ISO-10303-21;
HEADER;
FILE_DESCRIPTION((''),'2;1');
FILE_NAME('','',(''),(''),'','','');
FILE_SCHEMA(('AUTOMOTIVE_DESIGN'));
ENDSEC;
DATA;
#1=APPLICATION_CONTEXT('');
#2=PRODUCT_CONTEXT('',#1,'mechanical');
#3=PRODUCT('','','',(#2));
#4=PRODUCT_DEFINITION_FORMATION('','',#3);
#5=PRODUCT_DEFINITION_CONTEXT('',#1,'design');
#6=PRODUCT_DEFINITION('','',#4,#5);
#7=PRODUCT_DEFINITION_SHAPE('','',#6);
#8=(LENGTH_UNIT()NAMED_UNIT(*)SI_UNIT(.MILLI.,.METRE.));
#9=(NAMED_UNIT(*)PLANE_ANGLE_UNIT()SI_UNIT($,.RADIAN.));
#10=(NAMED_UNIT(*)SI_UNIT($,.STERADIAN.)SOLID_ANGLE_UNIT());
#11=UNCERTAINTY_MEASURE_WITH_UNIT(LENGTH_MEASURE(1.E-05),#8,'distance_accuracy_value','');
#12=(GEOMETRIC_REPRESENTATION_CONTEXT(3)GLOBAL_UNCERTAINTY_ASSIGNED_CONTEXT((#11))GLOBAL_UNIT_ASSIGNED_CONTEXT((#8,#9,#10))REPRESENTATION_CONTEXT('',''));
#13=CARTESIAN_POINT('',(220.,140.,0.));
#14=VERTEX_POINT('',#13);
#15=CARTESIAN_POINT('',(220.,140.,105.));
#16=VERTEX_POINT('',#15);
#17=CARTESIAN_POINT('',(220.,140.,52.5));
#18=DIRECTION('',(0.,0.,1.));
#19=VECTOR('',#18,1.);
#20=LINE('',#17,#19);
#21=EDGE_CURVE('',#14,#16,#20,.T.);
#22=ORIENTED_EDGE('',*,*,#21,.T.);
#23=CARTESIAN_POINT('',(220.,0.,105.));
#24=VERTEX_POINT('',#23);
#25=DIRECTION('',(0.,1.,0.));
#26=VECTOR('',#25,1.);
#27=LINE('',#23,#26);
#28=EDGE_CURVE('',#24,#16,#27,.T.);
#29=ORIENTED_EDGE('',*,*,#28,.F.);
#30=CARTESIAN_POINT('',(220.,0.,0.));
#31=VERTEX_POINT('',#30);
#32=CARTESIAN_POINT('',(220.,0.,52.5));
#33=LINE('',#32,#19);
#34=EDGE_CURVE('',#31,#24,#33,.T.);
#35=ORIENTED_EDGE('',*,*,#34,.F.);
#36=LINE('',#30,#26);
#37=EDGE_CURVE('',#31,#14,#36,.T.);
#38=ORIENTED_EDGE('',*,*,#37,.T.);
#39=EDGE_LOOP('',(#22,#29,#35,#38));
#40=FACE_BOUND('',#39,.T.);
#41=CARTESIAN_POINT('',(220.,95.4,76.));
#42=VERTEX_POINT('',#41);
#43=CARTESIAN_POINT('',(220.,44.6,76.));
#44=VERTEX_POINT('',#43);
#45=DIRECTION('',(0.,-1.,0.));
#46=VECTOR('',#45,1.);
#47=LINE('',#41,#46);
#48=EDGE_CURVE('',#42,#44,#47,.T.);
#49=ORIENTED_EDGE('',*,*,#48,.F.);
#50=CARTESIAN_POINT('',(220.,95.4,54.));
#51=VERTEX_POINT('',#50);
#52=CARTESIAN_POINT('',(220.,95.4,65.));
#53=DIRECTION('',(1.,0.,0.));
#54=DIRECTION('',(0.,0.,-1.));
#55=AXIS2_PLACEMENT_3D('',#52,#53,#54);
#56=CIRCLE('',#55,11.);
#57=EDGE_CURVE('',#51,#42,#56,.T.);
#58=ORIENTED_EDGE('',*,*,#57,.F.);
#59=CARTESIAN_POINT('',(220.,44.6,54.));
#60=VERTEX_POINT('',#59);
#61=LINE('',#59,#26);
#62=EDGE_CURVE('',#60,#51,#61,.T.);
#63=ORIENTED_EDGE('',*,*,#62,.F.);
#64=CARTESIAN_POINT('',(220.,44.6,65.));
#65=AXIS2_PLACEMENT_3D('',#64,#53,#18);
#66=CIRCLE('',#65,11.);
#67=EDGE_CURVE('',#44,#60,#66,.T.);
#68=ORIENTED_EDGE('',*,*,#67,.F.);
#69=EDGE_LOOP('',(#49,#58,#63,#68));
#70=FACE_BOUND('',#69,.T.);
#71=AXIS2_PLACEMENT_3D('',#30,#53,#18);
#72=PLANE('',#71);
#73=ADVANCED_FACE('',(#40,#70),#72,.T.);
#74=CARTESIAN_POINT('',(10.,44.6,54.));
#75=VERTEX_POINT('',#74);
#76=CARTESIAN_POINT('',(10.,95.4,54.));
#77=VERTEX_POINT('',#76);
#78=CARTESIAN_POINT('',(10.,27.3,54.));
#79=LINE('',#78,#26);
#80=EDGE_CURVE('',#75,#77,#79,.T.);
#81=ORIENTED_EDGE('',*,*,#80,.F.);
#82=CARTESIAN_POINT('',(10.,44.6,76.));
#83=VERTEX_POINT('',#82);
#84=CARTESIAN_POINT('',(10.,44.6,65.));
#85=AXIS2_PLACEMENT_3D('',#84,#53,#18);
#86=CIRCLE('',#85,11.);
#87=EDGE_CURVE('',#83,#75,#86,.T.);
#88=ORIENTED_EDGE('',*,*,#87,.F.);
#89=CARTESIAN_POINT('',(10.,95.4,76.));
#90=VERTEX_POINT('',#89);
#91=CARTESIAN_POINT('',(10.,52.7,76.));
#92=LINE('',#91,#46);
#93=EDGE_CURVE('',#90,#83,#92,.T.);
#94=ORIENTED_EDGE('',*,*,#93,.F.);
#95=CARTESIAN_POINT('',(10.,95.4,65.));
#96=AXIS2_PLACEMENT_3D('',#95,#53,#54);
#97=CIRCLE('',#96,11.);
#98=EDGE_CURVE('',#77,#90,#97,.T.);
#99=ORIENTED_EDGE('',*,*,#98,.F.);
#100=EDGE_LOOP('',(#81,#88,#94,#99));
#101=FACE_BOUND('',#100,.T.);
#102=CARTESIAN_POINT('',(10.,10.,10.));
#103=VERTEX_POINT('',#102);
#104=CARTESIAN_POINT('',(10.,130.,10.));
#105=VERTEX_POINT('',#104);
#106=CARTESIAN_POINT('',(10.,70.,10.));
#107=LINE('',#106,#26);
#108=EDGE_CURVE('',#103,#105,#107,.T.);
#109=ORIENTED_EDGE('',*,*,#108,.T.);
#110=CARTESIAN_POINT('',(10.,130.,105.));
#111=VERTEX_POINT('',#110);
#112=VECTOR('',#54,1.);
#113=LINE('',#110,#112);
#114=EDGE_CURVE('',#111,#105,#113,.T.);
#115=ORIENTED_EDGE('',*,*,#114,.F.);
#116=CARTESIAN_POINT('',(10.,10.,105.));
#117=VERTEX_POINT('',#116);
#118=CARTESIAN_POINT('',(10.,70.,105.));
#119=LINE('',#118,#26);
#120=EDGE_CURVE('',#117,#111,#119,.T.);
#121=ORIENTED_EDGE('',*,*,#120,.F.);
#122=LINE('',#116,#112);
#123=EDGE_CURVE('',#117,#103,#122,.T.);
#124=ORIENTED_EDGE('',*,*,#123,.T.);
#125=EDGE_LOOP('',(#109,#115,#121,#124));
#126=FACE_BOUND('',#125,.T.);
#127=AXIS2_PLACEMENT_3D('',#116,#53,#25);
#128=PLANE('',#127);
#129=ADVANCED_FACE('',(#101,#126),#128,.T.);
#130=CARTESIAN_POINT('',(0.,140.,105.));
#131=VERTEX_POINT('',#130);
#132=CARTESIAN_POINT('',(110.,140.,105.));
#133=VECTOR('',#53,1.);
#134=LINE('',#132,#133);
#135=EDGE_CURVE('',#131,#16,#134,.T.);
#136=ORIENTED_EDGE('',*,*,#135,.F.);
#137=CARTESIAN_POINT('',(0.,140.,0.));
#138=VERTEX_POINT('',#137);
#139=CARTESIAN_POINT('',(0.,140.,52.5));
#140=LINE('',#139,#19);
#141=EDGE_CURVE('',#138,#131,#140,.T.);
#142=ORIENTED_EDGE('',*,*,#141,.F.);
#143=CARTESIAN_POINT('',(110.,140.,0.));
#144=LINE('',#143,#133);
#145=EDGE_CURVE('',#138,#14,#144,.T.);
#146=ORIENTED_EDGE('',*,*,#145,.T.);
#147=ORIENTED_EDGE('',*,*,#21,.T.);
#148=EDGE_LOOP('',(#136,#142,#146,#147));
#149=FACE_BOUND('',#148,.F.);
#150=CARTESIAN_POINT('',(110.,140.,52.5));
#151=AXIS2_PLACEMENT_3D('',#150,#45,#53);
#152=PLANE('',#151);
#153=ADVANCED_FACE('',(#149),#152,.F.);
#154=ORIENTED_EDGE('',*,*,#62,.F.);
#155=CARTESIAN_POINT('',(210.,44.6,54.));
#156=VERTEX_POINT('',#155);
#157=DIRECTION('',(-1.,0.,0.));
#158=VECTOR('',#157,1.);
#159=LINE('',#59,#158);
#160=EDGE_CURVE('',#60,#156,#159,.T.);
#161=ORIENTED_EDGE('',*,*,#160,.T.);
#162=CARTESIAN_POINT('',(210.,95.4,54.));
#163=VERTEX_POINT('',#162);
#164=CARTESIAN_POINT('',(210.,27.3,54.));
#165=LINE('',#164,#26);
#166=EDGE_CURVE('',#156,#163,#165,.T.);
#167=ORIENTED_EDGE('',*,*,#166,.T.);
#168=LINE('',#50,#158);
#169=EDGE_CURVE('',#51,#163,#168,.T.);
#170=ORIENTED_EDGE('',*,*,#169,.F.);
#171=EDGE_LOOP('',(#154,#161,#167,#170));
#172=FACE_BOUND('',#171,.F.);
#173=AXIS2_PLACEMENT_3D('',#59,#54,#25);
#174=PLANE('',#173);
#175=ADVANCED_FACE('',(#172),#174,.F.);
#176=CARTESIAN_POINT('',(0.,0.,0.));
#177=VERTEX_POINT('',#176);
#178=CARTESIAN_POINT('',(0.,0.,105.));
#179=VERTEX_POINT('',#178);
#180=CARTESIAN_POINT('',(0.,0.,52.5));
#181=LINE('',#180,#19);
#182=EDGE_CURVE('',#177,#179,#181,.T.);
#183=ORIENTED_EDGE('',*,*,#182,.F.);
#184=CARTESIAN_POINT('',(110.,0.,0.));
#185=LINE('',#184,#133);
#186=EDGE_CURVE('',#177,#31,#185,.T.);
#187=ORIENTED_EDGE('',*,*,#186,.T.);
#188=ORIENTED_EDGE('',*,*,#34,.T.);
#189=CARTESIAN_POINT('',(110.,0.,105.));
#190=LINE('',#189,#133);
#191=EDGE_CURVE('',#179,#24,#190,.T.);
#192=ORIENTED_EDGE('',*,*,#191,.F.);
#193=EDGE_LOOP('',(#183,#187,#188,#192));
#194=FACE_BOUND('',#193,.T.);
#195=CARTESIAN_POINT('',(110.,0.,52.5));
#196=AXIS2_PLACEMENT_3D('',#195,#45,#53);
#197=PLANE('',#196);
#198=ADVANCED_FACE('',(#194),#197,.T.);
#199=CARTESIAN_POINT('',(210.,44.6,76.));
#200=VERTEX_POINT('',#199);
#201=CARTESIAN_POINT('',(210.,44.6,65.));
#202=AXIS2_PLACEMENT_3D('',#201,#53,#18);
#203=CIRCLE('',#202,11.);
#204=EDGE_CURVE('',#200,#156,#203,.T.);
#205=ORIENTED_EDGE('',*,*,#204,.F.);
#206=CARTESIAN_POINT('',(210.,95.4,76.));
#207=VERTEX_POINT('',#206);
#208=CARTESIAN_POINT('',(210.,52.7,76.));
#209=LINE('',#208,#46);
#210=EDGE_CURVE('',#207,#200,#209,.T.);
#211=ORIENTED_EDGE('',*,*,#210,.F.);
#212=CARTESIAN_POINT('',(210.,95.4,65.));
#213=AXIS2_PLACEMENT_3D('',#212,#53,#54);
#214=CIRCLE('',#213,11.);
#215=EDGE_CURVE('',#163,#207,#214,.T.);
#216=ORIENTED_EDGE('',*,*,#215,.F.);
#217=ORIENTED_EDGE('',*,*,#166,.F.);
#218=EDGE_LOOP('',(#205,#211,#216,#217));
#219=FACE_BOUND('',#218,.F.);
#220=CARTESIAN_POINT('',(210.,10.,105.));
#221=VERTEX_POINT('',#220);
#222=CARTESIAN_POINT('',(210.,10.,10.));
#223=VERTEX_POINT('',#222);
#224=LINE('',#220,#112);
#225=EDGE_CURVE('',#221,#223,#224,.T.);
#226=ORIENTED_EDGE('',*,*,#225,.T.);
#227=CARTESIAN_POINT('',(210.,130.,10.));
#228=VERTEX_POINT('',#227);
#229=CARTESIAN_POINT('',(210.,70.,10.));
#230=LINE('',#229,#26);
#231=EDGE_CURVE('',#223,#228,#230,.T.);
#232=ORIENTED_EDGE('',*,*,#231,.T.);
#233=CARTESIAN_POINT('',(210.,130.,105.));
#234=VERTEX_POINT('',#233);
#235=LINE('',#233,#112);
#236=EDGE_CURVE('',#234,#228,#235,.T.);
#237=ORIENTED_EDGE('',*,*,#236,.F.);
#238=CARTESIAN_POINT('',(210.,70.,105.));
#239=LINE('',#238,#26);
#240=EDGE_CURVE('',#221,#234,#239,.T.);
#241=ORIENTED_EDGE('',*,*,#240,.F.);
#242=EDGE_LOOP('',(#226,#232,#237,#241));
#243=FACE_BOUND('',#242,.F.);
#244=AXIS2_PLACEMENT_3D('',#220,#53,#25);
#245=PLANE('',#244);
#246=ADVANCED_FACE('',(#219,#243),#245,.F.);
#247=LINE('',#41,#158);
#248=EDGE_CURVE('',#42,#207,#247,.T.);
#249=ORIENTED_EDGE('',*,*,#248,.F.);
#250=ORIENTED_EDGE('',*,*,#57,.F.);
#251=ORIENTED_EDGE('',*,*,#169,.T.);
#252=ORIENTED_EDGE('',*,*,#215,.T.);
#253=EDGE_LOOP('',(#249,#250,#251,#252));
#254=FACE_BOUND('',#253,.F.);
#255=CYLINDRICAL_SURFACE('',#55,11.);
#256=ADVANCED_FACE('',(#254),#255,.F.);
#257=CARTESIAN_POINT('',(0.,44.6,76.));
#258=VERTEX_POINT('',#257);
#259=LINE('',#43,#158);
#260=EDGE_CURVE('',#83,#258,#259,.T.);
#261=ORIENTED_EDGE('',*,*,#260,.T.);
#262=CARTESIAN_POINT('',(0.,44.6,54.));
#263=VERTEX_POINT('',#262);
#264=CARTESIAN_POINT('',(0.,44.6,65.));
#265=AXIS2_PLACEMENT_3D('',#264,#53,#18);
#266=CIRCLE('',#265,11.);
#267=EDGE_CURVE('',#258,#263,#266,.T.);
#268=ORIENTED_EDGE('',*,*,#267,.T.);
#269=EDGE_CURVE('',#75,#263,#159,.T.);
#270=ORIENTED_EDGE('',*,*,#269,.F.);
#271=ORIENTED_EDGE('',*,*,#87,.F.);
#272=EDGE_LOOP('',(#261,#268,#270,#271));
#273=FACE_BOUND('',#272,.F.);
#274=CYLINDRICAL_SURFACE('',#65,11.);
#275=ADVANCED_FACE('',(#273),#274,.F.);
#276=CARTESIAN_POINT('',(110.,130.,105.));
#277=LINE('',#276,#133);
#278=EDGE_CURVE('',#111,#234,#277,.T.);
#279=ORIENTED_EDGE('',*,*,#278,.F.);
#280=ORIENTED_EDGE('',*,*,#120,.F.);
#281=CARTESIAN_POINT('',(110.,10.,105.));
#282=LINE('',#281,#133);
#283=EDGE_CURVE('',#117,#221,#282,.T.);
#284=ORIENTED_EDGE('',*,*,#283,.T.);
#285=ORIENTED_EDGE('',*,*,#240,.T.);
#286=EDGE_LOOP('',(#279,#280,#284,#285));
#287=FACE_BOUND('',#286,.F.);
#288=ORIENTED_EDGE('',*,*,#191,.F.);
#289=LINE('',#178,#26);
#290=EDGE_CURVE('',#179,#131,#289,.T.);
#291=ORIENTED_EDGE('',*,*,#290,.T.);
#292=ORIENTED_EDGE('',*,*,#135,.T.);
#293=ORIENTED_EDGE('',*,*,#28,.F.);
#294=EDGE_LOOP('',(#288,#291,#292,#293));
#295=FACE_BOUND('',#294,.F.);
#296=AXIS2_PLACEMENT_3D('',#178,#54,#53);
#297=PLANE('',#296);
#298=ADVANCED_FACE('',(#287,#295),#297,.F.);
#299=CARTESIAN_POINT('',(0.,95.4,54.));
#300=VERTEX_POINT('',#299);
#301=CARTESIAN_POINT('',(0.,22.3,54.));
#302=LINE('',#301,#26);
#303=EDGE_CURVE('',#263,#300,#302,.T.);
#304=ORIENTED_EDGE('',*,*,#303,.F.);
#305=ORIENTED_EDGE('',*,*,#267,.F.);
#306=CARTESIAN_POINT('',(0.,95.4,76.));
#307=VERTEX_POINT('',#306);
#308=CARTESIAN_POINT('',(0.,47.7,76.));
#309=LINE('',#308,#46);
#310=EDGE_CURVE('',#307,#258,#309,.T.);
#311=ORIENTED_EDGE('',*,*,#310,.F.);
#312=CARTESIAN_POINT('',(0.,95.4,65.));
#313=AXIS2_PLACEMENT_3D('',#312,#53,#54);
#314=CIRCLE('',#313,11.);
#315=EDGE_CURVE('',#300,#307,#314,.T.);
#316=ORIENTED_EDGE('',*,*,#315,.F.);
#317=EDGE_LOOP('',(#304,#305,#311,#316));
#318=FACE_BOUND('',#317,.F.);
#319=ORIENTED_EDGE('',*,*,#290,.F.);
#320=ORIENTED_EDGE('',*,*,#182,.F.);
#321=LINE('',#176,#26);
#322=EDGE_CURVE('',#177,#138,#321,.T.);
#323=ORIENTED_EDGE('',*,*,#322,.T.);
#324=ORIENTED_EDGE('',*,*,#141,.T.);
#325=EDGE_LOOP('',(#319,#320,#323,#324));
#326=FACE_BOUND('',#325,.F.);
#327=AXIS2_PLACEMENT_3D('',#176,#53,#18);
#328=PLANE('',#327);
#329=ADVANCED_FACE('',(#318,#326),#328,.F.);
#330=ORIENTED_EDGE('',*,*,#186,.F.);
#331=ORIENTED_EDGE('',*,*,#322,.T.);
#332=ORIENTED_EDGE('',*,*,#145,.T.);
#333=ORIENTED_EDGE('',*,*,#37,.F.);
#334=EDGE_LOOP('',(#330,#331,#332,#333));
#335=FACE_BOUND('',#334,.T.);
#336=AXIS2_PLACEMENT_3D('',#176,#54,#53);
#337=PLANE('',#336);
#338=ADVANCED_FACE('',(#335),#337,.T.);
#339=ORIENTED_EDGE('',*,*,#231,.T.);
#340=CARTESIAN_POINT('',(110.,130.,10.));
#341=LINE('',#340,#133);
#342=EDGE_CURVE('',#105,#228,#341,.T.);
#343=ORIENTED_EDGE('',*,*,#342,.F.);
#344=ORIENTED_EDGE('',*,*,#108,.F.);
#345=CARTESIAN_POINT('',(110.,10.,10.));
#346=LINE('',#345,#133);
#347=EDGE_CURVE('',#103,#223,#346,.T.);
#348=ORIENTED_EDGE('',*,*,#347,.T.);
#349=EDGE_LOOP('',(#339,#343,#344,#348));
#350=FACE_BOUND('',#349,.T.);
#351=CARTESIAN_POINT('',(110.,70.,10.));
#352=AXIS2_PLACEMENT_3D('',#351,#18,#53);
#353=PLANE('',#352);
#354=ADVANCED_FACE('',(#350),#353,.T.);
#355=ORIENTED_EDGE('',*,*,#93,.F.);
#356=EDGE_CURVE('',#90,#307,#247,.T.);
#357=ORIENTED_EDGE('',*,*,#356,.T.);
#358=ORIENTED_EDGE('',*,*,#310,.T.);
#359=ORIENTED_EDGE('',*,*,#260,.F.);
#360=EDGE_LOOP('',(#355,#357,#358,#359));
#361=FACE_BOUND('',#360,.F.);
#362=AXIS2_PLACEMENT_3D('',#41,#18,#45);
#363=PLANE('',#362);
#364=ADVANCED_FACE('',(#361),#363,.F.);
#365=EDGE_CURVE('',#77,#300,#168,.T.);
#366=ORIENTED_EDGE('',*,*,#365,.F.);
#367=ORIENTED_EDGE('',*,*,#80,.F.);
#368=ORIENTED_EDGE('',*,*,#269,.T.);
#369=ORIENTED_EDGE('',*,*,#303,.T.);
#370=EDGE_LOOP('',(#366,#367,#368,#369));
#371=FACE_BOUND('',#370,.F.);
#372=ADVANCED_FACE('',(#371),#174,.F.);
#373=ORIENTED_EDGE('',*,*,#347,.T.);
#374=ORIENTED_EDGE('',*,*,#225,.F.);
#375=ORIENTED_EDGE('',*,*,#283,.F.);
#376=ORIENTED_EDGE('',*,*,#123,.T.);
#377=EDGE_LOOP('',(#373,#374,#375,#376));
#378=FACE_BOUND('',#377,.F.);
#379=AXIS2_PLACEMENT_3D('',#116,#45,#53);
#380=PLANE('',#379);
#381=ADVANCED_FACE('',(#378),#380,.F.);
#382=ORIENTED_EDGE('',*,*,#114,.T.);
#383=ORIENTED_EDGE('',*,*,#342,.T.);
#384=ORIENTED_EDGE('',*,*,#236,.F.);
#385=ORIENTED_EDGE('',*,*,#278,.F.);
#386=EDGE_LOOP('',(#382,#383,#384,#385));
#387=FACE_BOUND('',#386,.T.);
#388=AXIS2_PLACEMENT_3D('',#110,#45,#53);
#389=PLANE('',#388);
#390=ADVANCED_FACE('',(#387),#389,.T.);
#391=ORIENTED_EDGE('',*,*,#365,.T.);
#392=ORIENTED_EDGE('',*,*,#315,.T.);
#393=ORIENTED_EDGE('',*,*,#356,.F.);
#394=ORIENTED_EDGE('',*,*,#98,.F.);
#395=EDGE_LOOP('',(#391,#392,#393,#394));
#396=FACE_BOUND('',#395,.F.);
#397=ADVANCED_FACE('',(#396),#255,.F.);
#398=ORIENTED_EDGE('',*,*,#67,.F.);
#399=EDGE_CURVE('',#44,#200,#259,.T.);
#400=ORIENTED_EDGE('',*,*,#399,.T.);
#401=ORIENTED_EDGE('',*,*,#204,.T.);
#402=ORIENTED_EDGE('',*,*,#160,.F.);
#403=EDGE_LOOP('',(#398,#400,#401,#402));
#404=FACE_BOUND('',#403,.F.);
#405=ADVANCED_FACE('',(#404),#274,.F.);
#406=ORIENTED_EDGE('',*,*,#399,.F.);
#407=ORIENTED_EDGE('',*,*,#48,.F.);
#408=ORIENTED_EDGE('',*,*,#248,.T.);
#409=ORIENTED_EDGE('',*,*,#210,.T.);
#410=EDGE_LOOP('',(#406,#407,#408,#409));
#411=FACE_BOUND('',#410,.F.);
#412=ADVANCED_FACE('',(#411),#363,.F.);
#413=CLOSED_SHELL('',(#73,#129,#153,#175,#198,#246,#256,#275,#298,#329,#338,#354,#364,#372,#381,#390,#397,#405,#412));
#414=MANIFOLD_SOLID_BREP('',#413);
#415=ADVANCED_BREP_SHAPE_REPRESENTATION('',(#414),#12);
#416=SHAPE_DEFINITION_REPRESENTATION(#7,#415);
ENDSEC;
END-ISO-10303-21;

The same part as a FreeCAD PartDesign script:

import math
import FreeCAD as App
import Part
import Sketcher

V = App.Vector


def add_polygon(sketch, points):
    """Adds a closed chain of lines whose ends are joined by coincident constraints."""
    first, n = sketch.GeometryCount, len(points)
    for a, b in zip(points, points[1:] + points[:1]):
        sketch.addGeometry(Part.LineSegment(App.Vector(*a, 0), App.Vector(*b, 0)), False)
    for i in range(n):
        sketch.addConstraint(Sketcher.Constraint("Coincident", first + i, 2, first + (i + 1) % n, 1))

doc = App.newDocument("Part")
body = doc.addObject("PartDesign::Body", "Body")

# Sketch on XZ plane
sketch1 = doc.addObject("Sketcher::SketchObject", "Sketch")
body.addObject(sketch1)
sketch1.AttachmentSupport = (doc.XZ_Plane, [""])
sketch1.MapMode = "FlatFace"
add_polygon(sketch1, [(0, 105), (0, 0), (220, 0), (220, 105)])  # lines 0-3
sketch1.addConstraint(Sketcher.Constraint("Vertical", 0))
sketch1.addConstraint(Sketcher.Constraint("Horizontal", 1))
sketch1.addConstraint(Sketcher.Constraint("Vertical", 2))
sketch1.addConstraint(Sketcher.Constraint("Horizontal", 3))
sketch1.addConstraint(Sketcher.Constraint("Coincident", 0, 2, -1, 1))
sketch1.addConstraint(Sketcher.Constraint("DistanceX", 1, 1, 1, 2, 220.0))
sketch1.addConstraint(Sketcher.Constraint("DistanceY", 0, 2, 0, 1, 105.0))
pad1 = doc.addObject("PartDesign::Pad", "Pad")
body.addObject(pad1)
pad1.Profile = sketch1
pad1.Length = 140
pad1.Reversed = True

# Sketch on XY plane
sketch2 = doc.addObject("Sketcher::SketchObject", "Sketch001")
body.addObject(sketch2)
sketch2.AttachmentSupport = (doc.XY_Plane, [""])
sketch2.MapMode = "FlatFace"
sketch2.AttachmentOffset = App.Placement(V(0, 0, 105), App.Rotation())
add_polygon(sketch2, [(10, 130), (10, 10), (210, 10), (210, 130)])  # lines 0-3
sketch2.addConstraint(Sketcher.Constraint("Vertical", 0))
sketch2.addConstraint(Sketcher.Constraint("Horizontal", 1))
sketch2.addConstraint(Sketcher.Constraint("Vertical", 2))
sketch2.addConstraint(Sketcher.Constraint("Horizontal", 3))
sketch2.addConstraint(Sketcher.Constraint("DistanceX", 1, 1, 1, 2, 200.0))
sketch2.addConstraint(Sketcher.Constraint("DistanceY", 0, 2, 0, 1, 120.0))
sketch2.addConstraint(Sketcher.Constraint("DistanceX", -1, 1, 0, 2, 10.0))
sketch2.addConstraint(Sketcher.Constraint("DistanceY", -1, 1, 0, 2, 10.0))
pocket1 = doc.addObject("PartDesign::Pocket", "Pocket")
body.addObject(pocket1)
pocket1.Profile = sketch2
pocket1.Length = 95

# Sketch on YZ plane
sketch3 = doc.addObject("Sketcher::SketchObject", "Sketch002")
body.addObject(sketch3)
sketch3.AttachmentSupport = (doc.YZ_Plane, [""])
sketch3.MapMode = "FlatFace"
sketch3.AttachmentOffset = App.Placement(V(0, 0, 220), App.Rotation())
sketch3.addGeometry(Part.LineSegment(V(95, 76, 0), V(45, 76, 0)), False)
sketch3.addGeometry(Part.ArcOfCircle(Part.Circle(V(45, 65, 0), V(0, 0, 1), 11), math.radians(90), math.radians(270)), False)
sketch3.addGeometry(Part.LineSegment(V(45, 54, 0), V(95, 54, 0)), False)
sketch3.addGeometry(Part.ArcOfCircle(Part.Circle(V(95, 65, 0), V(0, 0, 1), 11), math.radians(-90), math.radians(90)), False)
sketch3.addConstraint(Sketcher.Constraint("Tangent", 0, 2, 1, 1))
sketch3.addConstraint(Sketcher.Constraint("Tangent", 1, 2, 2, 1))
sketch3.addConstraint(Sketcher.Constraint("Tangent", 2, 2, 3, 1))
sketch3.addConstraint(Sketcher.Constraint("Tangent", 3, 2, 0, 1))
sketch3.addConstraint(Sketcher.Constraint("Horizontal", 0))
sketch3.addConstraint(Sketcher.Constraint("Horizontal", 2))
sketch3.addConstraint(Sketcher.Constraint("Radius", 1, 11.0))
sketch3.addConstraint(Sketcher.Constraint("DistanceX", 0, 2, 0, 1, 50.8))
sketch3.addConstraint(Sketcher.Constraint("DistanceY", -1, 1, 1, 3, 65.0))
sketch3.addConstraint(Sketcher.Constraint("DistanceX", -1, 1, 1, 3, 44.6))
pocket2 = doc.addObject("PartDesign::Pocket", "Pocket001")
body.addObject(pocket2)
pocket2.Profile = sketch3
pocket2.Type = "ThroughAll"

doc.recompute()
